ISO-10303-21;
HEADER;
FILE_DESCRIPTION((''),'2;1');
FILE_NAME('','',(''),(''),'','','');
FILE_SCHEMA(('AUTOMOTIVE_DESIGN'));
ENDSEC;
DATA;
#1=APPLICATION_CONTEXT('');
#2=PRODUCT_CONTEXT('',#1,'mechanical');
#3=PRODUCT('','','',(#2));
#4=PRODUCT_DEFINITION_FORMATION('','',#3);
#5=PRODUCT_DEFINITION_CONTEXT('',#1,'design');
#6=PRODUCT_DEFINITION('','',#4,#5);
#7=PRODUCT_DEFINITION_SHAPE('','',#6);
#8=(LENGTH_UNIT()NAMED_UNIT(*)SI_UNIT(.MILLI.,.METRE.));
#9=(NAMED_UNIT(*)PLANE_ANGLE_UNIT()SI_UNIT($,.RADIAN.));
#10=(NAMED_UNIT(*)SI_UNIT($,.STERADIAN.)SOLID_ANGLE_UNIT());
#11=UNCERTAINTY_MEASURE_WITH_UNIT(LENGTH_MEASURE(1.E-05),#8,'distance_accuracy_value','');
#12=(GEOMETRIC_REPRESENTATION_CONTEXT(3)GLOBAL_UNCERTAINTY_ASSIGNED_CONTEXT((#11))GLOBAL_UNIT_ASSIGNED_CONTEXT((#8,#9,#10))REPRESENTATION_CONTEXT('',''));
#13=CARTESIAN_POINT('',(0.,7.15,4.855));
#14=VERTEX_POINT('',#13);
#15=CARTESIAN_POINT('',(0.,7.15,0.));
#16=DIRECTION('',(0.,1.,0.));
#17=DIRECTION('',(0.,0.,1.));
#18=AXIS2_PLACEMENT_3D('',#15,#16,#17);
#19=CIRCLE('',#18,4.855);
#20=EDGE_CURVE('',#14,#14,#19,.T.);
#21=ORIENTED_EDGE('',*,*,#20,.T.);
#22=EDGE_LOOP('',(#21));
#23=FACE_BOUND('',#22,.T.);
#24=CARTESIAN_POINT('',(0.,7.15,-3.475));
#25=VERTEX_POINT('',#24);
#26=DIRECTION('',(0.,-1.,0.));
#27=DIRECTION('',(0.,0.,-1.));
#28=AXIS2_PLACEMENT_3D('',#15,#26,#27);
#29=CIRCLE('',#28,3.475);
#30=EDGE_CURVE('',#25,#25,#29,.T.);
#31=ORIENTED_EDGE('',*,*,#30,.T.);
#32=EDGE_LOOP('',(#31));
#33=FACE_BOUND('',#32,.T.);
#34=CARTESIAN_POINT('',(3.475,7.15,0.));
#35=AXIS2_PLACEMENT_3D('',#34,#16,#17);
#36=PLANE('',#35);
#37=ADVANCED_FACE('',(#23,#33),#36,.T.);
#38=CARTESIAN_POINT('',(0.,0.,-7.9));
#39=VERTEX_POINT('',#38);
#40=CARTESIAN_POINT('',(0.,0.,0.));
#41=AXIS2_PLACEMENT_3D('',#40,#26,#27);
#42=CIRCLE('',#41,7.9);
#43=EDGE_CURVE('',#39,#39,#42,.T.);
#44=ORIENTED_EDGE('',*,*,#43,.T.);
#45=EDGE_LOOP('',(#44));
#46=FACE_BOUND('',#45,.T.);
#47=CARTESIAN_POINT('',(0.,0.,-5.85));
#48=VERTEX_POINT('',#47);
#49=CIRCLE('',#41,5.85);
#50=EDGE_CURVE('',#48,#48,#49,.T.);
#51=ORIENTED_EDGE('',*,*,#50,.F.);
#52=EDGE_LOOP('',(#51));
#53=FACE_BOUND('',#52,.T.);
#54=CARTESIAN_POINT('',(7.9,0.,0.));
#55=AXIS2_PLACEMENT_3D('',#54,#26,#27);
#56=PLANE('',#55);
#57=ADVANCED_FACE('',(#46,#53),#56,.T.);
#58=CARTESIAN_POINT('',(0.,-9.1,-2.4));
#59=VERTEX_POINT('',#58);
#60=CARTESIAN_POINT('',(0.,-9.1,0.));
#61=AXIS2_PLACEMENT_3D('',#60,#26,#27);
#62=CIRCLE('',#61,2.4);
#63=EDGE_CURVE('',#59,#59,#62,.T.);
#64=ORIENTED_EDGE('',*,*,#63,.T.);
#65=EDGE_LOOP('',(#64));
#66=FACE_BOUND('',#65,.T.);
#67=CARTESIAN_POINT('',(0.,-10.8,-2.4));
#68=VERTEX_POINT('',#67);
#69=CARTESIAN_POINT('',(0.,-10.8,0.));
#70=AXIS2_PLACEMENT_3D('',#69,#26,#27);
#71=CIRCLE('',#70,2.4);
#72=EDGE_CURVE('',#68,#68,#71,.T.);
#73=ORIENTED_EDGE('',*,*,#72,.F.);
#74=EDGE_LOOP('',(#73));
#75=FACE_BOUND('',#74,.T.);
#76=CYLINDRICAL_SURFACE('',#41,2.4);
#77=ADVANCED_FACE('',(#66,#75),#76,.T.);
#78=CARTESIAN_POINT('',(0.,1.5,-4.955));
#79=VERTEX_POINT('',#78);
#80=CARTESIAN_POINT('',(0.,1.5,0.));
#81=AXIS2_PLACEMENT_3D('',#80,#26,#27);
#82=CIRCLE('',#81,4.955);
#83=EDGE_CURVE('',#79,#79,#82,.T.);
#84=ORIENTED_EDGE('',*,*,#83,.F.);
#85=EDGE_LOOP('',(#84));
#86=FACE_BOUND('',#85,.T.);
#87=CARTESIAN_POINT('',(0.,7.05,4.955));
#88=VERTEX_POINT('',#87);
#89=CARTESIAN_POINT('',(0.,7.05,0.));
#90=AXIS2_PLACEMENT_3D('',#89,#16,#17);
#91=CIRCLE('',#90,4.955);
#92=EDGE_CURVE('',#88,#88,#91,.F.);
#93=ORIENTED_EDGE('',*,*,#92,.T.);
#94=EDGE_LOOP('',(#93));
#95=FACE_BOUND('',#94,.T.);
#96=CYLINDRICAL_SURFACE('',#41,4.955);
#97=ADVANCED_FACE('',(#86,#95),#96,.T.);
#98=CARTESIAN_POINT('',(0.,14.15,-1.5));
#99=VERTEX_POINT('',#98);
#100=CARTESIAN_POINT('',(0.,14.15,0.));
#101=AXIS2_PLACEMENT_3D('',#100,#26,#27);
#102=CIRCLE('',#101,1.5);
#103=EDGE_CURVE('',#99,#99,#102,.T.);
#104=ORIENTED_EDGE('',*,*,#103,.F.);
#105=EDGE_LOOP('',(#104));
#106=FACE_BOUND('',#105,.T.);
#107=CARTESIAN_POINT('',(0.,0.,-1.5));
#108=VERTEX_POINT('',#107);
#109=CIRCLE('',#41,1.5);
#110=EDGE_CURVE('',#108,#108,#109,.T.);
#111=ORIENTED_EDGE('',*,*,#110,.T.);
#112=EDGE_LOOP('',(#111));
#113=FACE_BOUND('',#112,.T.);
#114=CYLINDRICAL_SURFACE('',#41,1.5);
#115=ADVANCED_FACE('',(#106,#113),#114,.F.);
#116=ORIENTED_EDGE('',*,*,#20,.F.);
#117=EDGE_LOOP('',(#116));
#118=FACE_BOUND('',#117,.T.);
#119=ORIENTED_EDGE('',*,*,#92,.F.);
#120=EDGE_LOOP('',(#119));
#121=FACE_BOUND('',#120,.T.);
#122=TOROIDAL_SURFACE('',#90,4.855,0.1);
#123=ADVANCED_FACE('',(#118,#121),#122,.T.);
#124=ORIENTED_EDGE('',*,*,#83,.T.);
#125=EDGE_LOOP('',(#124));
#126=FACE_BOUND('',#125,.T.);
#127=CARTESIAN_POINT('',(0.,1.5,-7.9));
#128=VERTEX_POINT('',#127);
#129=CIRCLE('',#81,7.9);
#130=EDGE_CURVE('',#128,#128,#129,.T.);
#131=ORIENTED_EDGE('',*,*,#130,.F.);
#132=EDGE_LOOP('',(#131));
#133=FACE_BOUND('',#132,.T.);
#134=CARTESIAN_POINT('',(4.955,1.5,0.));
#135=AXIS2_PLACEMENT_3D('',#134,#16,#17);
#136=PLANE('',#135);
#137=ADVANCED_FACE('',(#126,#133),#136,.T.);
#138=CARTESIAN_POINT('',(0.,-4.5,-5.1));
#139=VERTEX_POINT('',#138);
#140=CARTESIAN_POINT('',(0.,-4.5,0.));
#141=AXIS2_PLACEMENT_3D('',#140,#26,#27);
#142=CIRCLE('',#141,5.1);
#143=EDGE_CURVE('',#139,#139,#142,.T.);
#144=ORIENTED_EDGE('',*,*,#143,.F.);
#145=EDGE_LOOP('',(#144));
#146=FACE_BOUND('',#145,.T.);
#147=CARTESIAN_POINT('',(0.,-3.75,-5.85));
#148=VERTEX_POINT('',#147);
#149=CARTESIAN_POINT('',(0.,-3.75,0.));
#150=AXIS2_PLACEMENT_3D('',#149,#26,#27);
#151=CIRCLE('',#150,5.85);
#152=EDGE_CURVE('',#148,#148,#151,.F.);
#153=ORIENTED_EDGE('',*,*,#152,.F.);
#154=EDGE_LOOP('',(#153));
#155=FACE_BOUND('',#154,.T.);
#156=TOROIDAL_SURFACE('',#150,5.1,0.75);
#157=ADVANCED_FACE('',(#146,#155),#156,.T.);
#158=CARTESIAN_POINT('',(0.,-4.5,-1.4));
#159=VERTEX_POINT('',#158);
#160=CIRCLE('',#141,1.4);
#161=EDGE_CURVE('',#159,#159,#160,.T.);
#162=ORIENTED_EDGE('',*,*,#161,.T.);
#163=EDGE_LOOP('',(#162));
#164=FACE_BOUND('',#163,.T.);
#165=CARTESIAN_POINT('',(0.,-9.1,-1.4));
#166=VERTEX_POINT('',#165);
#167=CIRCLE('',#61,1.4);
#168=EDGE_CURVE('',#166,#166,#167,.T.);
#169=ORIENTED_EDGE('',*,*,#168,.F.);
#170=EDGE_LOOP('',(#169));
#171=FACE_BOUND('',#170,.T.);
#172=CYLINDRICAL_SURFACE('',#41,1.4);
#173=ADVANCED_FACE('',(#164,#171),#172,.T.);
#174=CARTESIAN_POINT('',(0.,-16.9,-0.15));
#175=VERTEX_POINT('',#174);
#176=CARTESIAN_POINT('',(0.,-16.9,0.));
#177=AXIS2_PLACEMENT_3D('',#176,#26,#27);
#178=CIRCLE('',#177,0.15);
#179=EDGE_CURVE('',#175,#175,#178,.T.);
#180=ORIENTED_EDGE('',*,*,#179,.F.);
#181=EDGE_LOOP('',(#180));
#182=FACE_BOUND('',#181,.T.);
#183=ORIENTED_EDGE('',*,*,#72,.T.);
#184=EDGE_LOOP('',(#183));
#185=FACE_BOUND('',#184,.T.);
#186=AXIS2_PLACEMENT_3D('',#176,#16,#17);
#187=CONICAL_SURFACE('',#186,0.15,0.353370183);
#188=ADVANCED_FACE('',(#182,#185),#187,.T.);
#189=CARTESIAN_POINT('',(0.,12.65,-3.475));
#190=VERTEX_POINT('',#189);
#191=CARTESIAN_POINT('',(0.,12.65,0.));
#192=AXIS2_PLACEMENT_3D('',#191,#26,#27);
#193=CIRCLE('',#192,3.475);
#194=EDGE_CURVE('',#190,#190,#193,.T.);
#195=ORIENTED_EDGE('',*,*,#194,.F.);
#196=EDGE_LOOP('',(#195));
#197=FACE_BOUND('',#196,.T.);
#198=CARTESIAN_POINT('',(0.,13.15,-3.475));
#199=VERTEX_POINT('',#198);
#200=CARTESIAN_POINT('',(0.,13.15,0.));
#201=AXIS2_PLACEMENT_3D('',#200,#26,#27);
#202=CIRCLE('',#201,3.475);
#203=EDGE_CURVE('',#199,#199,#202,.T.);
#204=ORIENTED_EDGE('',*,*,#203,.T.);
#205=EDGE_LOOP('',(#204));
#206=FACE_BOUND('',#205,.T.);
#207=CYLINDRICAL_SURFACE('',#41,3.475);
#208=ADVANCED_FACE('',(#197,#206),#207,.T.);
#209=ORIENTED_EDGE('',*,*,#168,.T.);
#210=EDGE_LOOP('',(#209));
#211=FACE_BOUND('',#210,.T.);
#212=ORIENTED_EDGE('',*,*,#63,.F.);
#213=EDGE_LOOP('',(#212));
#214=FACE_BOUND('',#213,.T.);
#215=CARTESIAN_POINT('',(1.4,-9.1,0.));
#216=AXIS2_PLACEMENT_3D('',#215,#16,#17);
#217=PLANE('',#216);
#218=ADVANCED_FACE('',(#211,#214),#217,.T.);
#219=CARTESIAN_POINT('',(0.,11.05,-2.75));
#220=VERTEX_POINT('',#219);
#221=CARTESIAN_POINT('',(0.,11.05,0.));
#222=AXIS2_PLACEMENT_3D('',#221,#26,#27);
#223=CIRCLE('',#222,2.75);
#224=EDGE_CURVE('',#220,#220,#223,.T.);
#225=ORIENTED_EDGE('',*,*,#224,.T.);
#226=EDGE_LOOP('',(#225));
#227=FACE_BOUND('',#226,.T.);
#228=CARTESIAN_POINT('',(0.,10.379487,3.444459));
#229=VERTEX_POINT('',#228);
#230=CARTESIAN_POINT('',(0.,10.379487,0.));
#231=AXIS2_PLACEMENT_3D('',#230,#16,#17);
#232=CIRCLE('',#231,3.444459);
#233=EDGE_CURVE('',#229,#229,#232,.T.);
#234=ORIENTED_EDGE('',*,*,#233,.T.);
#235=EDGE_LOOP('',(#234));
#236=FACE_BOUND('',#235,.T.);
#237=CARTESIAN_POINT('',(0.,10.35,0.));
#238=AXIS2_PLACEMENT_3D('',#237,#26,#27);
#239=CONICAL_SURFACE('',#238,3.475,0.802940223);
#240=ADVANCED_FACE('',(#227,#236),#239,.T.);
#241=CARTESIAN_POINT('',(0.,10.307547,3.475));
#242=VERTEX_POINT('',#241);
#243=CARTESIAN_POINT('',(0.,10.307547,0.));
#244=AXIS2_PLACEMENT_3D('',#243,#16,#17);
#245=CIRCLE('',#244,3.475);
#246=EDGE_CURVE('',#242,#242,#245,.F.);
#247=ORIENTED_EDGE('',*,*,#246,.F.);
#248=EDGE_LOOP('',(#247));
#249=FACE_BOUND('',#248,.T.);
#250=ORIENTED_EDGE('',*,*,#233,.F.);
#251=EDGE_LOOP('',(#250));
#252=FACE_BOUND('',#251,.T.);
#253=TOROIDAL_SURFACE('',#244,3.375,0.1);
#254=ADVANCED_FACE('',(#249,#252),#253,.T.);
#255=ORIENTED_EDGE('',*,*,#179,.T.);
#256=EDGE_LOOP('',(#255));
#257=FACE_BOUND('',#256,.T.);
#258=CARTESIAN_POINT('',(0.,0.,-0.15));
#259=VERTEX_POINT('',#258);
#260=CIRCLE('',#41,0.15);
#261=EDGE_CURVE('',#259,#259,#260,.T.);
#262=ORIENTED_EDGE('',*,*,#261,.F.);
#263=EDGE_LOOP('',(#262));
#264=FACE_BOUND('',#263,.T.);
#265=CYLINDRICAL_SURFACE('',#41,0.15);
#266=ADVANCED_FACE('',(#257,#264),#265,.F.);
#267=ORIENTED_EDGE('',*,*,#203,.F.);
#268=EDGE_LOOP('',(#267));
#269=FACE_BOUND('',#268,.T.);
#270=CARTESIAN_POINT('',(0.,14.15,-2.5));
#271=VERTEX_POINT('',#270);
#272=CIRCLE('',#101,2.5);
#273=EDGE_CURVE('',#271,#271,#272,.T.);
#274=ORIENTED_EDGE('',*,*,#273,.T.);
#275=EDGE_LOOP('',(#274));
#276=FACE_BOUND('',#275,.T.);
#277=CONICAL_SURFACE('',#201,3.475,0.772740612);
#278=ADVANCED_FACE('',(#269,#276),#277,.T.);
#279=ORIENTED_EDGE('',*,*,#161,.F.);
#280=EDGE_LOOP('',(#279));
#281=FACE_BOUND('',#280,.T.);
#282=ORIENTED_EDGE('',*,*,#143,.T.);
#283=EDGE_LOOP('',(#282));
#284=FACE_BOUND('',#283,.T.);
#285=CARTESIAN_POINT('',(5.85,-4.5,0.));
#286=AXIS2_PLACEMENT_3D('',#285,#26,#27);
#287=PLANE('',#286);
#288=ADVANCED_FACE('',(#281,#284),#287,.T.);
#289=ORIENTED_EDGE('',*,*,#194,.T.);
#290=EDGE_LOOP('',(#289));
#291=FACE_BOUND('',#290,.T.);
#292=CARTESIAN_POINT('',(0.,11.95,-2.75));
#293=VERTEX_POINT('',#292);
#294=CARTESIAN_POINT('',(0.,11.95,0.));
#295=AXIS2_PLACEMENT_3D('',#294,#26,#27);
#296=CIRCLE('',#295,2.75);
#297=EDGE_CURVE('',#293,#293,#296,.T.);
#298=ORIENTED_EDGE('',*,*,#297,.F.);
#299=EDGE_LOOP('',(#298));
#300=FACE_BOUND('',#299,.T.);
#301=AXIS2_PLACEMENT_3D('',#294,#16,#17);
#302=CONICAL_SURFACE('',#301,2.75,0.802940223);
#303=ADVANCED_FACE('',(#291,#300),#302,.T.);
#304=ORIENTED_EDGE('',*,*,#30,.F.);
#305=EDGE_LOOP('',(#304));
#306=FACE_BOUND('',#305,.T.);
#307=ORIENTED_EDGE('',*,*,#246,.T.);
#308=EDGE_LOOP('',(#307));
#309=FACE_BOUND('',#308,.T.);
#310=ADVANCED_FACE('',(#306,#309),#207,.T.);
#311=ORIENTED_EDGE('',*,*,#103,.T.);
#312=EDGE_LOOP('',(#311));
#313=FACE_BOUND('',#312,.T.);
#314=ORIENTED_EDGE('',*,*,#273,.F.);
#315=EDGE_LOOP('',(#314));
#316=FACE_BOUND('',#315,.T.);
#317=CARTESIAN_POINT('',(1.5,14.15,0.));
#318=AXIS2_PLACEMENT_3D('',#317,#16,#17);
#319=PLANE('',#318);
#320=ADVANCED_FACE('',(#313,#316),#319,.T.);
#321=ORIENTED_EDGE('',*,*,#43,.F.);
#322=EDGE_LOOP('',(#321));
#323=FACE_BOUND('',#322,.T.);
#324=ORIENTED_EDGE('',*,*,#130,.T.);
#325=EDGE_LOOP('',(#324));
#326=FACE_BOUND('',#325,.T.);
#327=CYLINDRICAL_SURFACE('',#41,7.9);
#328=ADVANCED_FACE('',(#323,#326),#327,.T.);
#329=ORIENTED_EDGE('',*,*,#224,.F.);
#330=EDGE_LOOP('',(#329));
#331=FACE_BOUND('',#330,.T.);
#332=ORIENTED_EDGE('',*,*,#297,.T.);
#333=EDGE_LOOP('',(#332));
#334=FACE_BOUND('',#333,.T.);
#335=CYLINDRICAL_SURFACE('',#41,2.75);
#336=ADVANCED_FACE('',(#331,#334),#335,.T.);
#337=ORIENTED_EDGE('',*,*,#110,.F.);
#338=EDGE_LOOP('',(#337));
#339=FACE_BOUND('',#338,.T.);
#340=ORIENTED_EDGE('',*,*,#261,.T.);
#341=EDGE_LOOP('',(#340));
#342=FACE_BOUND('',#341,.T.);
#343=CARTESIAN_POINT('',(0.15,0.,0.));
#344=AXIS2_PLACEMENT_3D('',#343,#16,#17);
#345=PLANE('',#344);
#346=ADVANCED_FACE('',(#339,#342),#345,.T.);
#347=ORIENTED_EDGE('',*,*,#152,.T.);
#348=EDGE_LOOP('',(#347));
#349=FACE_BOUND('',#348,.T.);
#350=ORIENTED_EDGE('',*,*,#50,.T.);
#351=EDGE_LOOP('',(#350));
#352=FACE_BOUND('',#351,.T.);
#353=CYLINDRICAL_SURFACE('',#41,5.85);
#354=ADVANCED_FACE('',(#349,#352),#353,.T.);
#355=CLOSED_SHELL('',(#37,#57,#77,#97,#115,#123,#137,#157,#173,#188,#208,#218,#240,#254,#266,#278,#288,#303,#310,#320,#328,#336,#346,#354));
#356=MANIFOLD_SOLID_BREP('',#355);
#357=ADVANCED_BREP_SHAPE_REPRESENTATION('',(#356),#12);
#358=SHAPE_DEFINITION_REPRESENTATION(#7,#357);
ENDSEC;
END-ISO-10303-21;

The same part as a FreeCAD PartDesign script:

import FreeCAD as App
import Part
import Sketcher

V = App.Vector


def edges_at(feature, points):
    """Names of the edges that pass closest to the given points."""
    edges = feature.Shape.Edges
    near = lambda p: min(range(len(edges)), key=lambda i: edges[i].distToShape(Part.Vertex(*p))[0])
    return sorted({f"Edge{near(p) + 1}" for p in points})

doc = App.newDocument("Part")
body = doc.addObject("PartDesign::Body", "Body")

sketch1 = doc.addObject("Sketcher::SketchObject", "Sketch")
body.addObject(sketch1)
sketch1.AttachmentSupport = (doc.XY_Plane, [""])
sketch1.MapMode = "FlatFace"
sketch1.addGeometry([
    Part.LineSegment(V(2.5, 14.2, 0), V(1.5, 14.2, 0)),
    Part.LineSegment(V(1.5, 14.2, 0), V(1.5, 0, 0)),
    Part.LineSegment(V(1.5, 0, 0), V(0.1, 0, 0)),
    Part.LineSegment(V(0.1, 0, 0), V(0.1, -16.9, 0)),
    Part.LineSegment(V(0.1, -16.9, 0), V(2.4, -10.8, 0)),
    Part.LineSegment(V(2.4, -10.8, 0), V(2.4, -9.1, 0)),
    Part.LineSegment(V(2.4, -9.1, 0), V(1.4, -9.1, 0)),
    Part.LineSegment(V(1.4, -9.1, 0), V(1.4, -4.5, 0)),
    Part.LineSegment(V(1.4, -4.5, 0), V(5.8, -4.5, 0)),
    Part.LineSegment(V(5.8, -4.5, 0), V(5.8, 0, 0)),
    Part.LineSegment(V(5.8, 0, 0), V(7.9, 0, 0)),
    Part.LineSegment(V(7.9, 0, 0), V(7.9, 1.5, 0)),
    Part.LineSegment(V(7.9, 1.5, 0), V(5, 1.5, 0)),
    Part.LineSegment(V(5, 1.5, 0), V(5, 7.2, 0)),
    Part.LineSegment(V(5, 7.2, 0), V(3.5, 7.2, 0)),
    Part.LineSegment(V(3.5, 7.2, 0), V(3.5, 10.3, 0)),
    Part.LineSegment(V(3.5, 10.3, 0), V(2.8, 11.1, 0)),
    Part.LineSegment(V(2.8, 11.1, 0), V(2.8, 11.9, 0)),
    Part.LineSegment(V(2.8, 11.9, 0), V(3.5, 12.7, 0)),
    Part.LineSegment(V(3.5, 12.7, 0), V(3.5, 13.2, 0)),
    Part.LineSegment(V(3.5, 13.2, 0), V(2.5, 14.2, 0)),
], False)
sketch1.addConstraint([
    Sketcher.Constraint("Coincident", 0, 2, 1, 1),
    Sketcher.Constraint("Coincident", 1, 2, 2, 1),
    Sketcher.Constraint("Coincident", 2, 2, 3, 1),
    Sketcher.Constraint("Coincident", 3, 2, 4, 1),
    Sketcher.Constraint("Coincident", 4, 2, 5, 1),
    Sketcher.Constraint("Coincident", 5, 2, 6, 1),
    Sketcher.Constraint("Coincident", 6, 2, 7, 1),
    Sketcher.Constraint("Coincident", 7, 2, 8, 1),
    Sketcher.Constraint("Coincident", 8, 2, 9, 1),
    Sketcher.Constraint("Coincident", 9, 2, 10, 1),
    Sketcher.Constraint("Coincident", 10, 2, 11, 1),
    Sketcher.Constraint("Coincident", 11, 2, 12, 1),
    Sketcher.Constraint("Coincident", 12, 2, 13, 1),
    Sketcher.Constraint("Coincident", 13, 2, 14, 1),
    Sketcher.Constraint("Coincident", 14, 2, 15, 1),
    Sketcher.Constraint("Coincident", 15, 2, 16, 1),
    Sketcher.Constraint("Coincident", 16, 2, 17, 1),
    Sketcher.Constraint("Coincident", 17, 2, 18, 1),
    Sketcher.Constraint("Coincident", 18, 2, 19, 1),
    Sketcher.Constraint("Coincident", 19, 2, 20, 1),
    Sketcher.Constraint("Coincident", 20, 2, 0, 1),
    Sketcher.Constraint("Horizontal", 0),
    Sketcher.Constraint("Vertical", 1),
    Sketcher.Constraint("Horizontal", 2),
    Sketcher.Constraint("Vertical", 3),
    Sketcher.Constraint("Vertical", 5),
    Sketcher.Constraint("Horizontal", 6),
    Sketcher.Constraint("Vertical", 7),
    Sketcher.Constraint("Horizontal", 8),
    Sketcher.Constraint("Vertical", 9),
    Sketcher.Constraint("Horizontal", 10),
    Sketcher.Constraint("Vertical", 11),
    Sketcher.Constraint("Horizontal", 12),
    Sketcher.Constraint("Vertical", 13),
    Sketcher.Constraint("Horizontal", 14),
    Sketcher.Constraint("Vertical", 15),
    Sketcher.Constraint("Vertical", 17),
    Sketcher.Constraint("Vertical", 19),
    Sketcher.Constraint("PointOnObject", 1, 2, -1),
    Sketcher.Constraint("PointOnObject", 9, 2, -1),
    Sketcher.Constraint("Vertical", 15, 2, 18, 2),
    Sketcher.Constraint("Equal", 0, 6),
    Sketcher.Constraint("Equal", 16, 18),
    Sketcher.Constraint("DistanceX", 0, 2, 0, 1, 1.0),
    Sketcher.Constraint("DistanceY", 3, 2, 3, 1, 16.9),
    Sketcher.Constraint("DistanceY", 5, 1, 5, 2, 1.7),
    Sketcher.Constraint("DistanceY", 7, 1, 7, 2, 4.6),
    Sketcher.Constraint("DistanceY", 9, 1, 9, 2, 4.5),
    Sketcher.Constraint("DistanceY", 11, 1, 11, 2, 1.5),
    Sketcher.Constraint("DistanceY", 15, 1, 15, 2, 3.2),
    Sketcher.Constraint("DistanceY", 17, 1, 17, 2, 0.9),
    Sketcher.Constraint("DistanceY", 19, 1, 19, 2, 0.5),
    Sketcher.Constraint("DistanceY", 13, 2, 0, 2, 7.0),
    Sketcher.Constraint("DistanceY", 19, 2, 0, 2, 1.0),
    Sketcher.Constraint("DistanceX", 2, 2, 2, 1, 1.35),
    Sketcher.Constraint("DistanceX", 8, 1, 8, 2, 4.45),
    Sketcher.Constraint("DistanceX", 10, 1, 10, 2, 2.05),
    Sketcher.Constraint("DistanceX", 14, 2, 14, 1, 1.48),
    Sketcher.Constraint("DistanceY", 1, 2, 1, 1, 14.15),
    Sketcher.Constraint("DistanceX", -1, 1, 0, 2, 1.5),
    Sketcher.Constraint("DistanceX", -1, 1, 4, 2, 2.4),
    Sketcher.Constraint("DistanceX", 12, 2, 12, 1, 2.945),
    Sketcher.Constraint("DistanceX", -1, 1, 16, 2, 2.75),
])
revolution = doc.addObject("PartDesign::Revolution", "Revolution")
body.addObject(revolution)
revolution.Profile = sketch1
revolution.ReferenceAxis = (sketch1, ["V_Axis"])
revolution.Angle = 360
doc.recompute()

fillet = doc.addObject("PartDesign::Fillet", "Fillet")
body.addObject(fillet)
fillet.Base = (revolution, edges_at(revolution, [(-5.85, -4.5, 0)]))
fillet.Radius = 0.75
doc.recompute()

fillet2 = doc.addObject("PartDesign::Fillet", "Fillet001")
body.addObject(fillet2)
fillet2.Base = (fillet, edges_at(fillet, [(-4.955, 7.15, 0), (-3.475, 10.35, 0)]))
fillet2.Radius = 0.1

doc.recompute()
